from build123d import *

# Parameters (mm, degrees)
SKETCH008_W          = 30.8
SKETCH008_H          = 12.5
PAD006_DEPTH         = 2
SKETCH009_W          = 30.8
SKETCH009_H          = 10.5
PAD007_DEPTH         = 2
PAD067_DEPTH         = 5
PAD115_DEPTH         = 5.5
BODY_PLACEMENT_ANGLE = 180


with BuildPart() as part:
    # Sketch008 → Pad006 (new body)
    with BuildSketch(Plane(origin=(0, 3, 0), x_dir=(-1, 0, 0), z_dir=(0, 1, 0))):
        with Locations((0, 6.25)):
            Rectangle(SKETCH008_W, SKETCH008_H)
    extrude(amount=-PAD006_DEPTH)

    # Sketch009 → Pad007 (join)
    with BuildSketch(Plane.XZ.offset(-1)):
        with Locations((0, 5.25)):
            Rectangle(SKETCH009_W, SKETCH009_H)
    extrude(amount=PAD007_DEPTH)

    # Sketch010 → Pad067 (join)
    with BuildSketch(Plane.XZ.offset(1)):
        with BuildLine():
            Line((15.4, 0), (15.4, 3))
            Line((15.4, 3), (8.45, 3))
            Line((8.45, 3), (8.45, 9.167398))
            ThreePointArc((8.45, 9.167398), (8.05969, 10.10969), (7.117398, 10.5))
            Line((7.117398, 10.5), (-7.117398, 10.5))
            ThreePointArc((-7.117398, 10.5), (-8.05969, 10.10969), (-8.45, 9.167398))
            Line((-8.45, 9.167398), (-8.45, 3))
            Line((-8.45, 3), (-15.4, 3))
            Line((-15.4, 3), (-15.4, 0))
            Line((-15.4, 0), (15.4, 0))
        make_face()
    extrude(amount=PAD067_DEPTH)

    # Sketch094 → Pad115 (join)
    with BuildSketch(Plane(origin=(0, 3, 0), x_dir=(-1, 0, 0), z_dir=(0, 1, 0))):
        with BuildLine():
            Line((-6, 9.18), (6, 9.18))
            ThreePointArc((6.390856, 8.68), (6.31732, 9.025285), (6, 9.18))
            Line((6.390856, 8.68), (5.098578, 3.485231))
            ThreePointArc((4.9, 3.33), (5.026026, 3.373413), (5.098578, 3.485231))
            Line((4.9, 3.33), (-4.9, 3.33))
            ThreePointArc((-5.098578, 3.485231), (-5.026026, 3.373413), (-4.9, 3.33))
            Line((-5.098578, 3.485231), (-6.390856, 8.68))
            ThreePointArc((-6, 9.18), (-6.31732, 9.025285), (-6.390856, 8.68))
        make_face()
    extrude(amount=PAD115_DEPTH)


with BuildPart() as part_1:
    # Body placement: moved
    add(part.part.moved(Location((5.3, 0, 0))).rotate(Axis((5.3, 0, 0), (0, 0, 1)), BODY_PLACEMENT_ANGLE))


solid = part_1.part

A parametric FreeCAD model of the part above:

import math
import FreeCAD as App
import Part
import Sketcher
from FreeCAD import Vector
Q = App.Units.Quantity


def add_polygon(sketch, points):
    """Adds a closed chain of lines whose ends are joined by coincident constraints."""
    first, n = sketch.GeometryCount, len(points)
    for a, b in zip(points, points[1:] + points[:1]):
        sketch.addGeometry(Part.LineSegment(App.Vector(*a, 0), App.Vector(*b, 0)), False)
    for i in range(n):
        sketch.addConstraint(Sketcher.Constraint("Coincident", first + i, 2, first + (i + 1) % n, 1))

doc = App.newDocument("Part")
body = doc.addObject("PartDesign::Body", "Body")

# Sketch on XZ plane
sketch1 = body.newObject("Sketcher::SketchObject", "Sketch")
sketch1.AttachmentSupport = (doc.getObject("XZ_Plane"), [""])
sketch1.MapMode = "FlatFace"
sketch1.AttachmentOffset = App.Placement(Vector(0, 0, -3), App.Rotation())
add_polygon(sketch1, [(15, 12), (15, 0), (-15, 0), (-15, 12)])  # lines 0-3
sketch1.addConstraint(Sketcher.Constraint("Vertical", 0))
sketch1.addConstraint(Sketcher.Constraint("Horizontal", 1))
sketch1.addConstraint(Sketcher.Constraint("Vertical", 2))
sketch1.addConstraint(Sketcher.Constraint("Horizontal", 3))
sketch1.addConstraint(Sketcher.Constraint("Symmetric", 0, 2, 1, 2, -1, 1))
sketch1.addConstraint(Sketcher.Constraint("DistanceX", 1, 2, 1, 1, Q("30.8 mm")))
sketch1.addConstraint(Sketcher.Constraint("DistanceY", 0, 2, 0, 1, Q("12.5 mm")))
pad1 = body.newObject("PartDesign::Pad", "Pad")
pad1.Profile = sketch1
pad1.Length = 2

# Sketch on XZ plane
sketch2 = body.newObject("Sketcher::SketchObject", "Sketch001")
sketch2.AttachmentSupport = (doc.getObject("XZ_Plane"), [""])
sketch2.MapMode = "FlatFace"
sketch2.AttachmentOffset = App.Placement(Vector(0, 0, -1), App.Rotation())
add_polygon(sketch2, [(-15, 10), (-15, 0), (15, 0), (15, 10)])  # lines 0-3
sketch2.addConstraint(Sketcher.Constraint("Vertical", 0))
sketch2.addConstraint(Sketcher.Constraint("Horizontal", 1))
sketch2.addConstraint(Sketcher.Constraint("Vertical", 2))
sketch2.addConstraint(Sketcher.Constraint("Horizontal", 3))
sketch2.addConstraint(Sketcher.Constraint("Symmetric", 0, 2, 1, 2, -1, 1))
sketch2.addConstraint(Sketcher.Constraint("DistanceX", 1, 1, 1, 2, Q("30.8 mm")))
sketch2.addConstraint(Sketcher.Constraint("DistanceY", 0, 2, 0, 1, Q("10.5 mm")))
pad2 = body.newObject("PartDesign::Pad", "Pad001")
pad2.Profile = sketch2
pad2.Length = 2

# Sketch on XZ plane
sketch3 = body.newObject("Sketcher::SketchObject", "Sketch002")
sketch3.AttachmentSupport = (doc.getObject("XZ_Plane"), [""])
sketch3.MapMode = "FlatFace"
sketch3.AttachmentOffset = App.Placement(Vector(0, 0, 1), App.Rotation())
sketch3.addGeometry(Part.LineSegment(Vector(15.4, 0, 0), Vector(15.4, 3, 0)), False)
sketch3.addGeometry(Part.LineSegment(Vector(15.4, 3, 0), Vector(8.4, 3, 0)), False)
sketch3.addGeometry(Part.LineSegment(Vector(8.4, 3, 0), Vector(8.4, 9.2, 0)), False)
sketch3.addGeometry(Part.ArcOfCircle(Part.Circle(Vector(7.1, 9.2, 0), Vector(0, 0, 1), 1.3), math.radians(0), math.radians(90)), False)
sketch3.addGeometry(Part.LineSegment(Vector(7.1, 10.5, 0), Vector(-7.1, 10.5, 0)), False)
sketch3.addGeometry(Part.ArcOfCircle(Part.Circle(Vector(-7.1, 9.2, 0), Vector(0, 0, 1), 1.3), math.radians(90), math.radians(180)), False)
sketch3.addGeometry(Part.LineSegment(Vector(-8.4, 9.2, 0), Vector(-8.4, 3, 0)), False)
sketch3.addGeometry(Part.LineSegment(Vector(-8.4, 3, 0), Vector(-15.4, 3, 0)), False)
sketch3.addGeometry(Part.LineSegment(Vector(-15.4, 3, 0), Vector(-15.4, 0, 0)), False)
sketch3.addGeometry(Part.LineSegment(Vector(-15.4, 0, 0), Vector(15.4, 0, 0)), False)
sketch3.addConstraint(Sketcher.Constraint("Coincident", 0, 2, 1, 1))
sketch3.addConstraint(Sketcher.Constraint("Coincident", 1, 2, 2, 1))
sketch3.addConstraint(Sketcher.Constraint("Tangent", 2, 2, 3, 1))
sketch3.addConstraint(Sketcher.Constraint("Tangent", 3, 2, 4, 1))
sketch3.addConstraint(Sketcher.Constraint("Tangent", 4, 2, 5, 1))
sketch3.addConstraint(Sketcher.Constraint("Tangent", 5, 2, 6, 1))
sketch3.addConstraint(Sketcher.Constraint("Coincident", 6, 2, 7, 1))
sketch3.addConstraint(Sketcher.Constraint("Coincident", 7, 2, 8, 1))
sketch3.addConstraint(Sketcher.Constraint("Coincident", 8, 2, 9, 1))
sketch3.addConstraint(Sketcher.Constraint("Coincident", 9, 2, 0, 1))
sketch3.addConstraint(Sketcher.Constraint("Vertical", 0))
sketch3.addConstraint(Sketcher.Constraint("Horizontal", 1))
sketch3.addConstraint(Sketcher.Constraint("Vertical", 2))
sketch3.addConstraint(Sketcher.Constraint("Horizontal", 4))
sketch3.addConstraint(Sketcher.Constraint("Vertical", 6))
sketch3.addConstraint(Sketcher.Constraint("Horizontal", 7))
sketch3.addConstraint(Sketcher.Constraint("Vertical", 8))
sketch3.addConstraint(Sketcher.Constraint("Horizontal", 9))
sketch3.addConstraint(Sketcher.Constraint("Equal", 3, 5))
sketch3.addConstraint(Sketcher.Constraint("Symmetric", 8, 2, 9, 2, -1, 1))
sketch3.addConstraint(Sketcher.Constraint("Symmetric", 1, 2, 6, 2, -2))
sketch3.addConstraint(Sketcher.Constraint("DistanceY", 0, 1, 0, 2, Q("3 mm")))
sketch3.addConstraint(Sketcher.Constraint("DistanceX", 9, 1, 9, 2, Q("30.8 mm")))
sketch3.addConstraint(Sketcher.Constraint("DistanceX", 1, 2, 1, 1, Q("6.95 mm")))
sketch3.addConstraint(Sketcher.Constraint("DistanceY", -1, 1, 3, 2, Q("10.5 mm")))
sketch3.addConstraint(Sketcher.Constraint("Radius", 3, Q("1.332602 mm")))
pad3 = body.newObject("PartDesign::Pad", "Pad002")
pad3.Profile = sketch3
pad3.Length = 5

# Sketch on XZ plane
sketch4 = body.newObject("Sketcher::SketchObject", "Sketch003")
sketch4.AttachmentSupport = (doc.getObject("XZ_Plane"), [""])
sketch4.MapMode = "FlatFace"
sketch4.AttachmentOffset = App.Placement(Vector(0, 0, -3), App.Rotation())
sketch4.addGeometry(Part.LineSegment(Vector(-6, 9.18, 0), Vector(6, 9.18, 0)), False)
sketch4.addGeometry(Part.ArcOfCircle(Part.Circle(Vector(6, 8.78, 0), Vector(0, 0, 1), 0.4), math.radians(-14), math.radians(90)), False)
sketch4.addGeometry(Part.LineSegment(Vector(6.39, 8.68, 0), Vector(5.1, 3.49, 0)), False)
sketch4.addGeometry(Part.ArcOfCircle(Part.Circle(Vector(4.9, 3.53, 0), Vector(0, 0, 1), 0.2), math.radians(-90), math.radians(-14)), False)
sketch4.addGeometry(Part.LineSegment(Vector(4.9, 3.33, 0), Vector(-4.9, 3.33, 0)), False)
sketch4.addGeometry(Part.ArcOfCircle(Part.Circle(Vector(-4.9, 3.53, 0), Vector(0, 0, 1), 0.2), math.radians(-166), math.radians(-90)), False)
sketch4.addGeometry(Part.LineSegment(Vector(-5.1, 3.49, 0), Vector(-6.39, 8.68, 0)), False)
sketch4.addGeometry(Part.ArcOfCircle(Part.Circle(Vector(-6, 8.78, 0), Vector(0, 0, 1), 0.4), math.radians(90), math.radians(194)), False)
sketch4.addConstraint(Sketcher.Constraint("Tangent", 0, 2, 1, 2))
sketch4.addConstraint(Sketcher.Constraint("Tangent", 1, 1, 2, 1))
sketch4.addConstraint(Sketcher.Constraint("Tangent", 2, 2, 3, 2))
sketch4.addConstraint(Sketcher.Constraint("Tangent", 3, 1, 4, 1))
sketch4.addConstraint(Sketcher.Constraint("Tangent", 4, 2, 5, 2))
sketch4.addConstraint(Sketcher.Constraint("Tangent", 5, 1, 6, 1))
sketch4.addConstraint(Sketcher.Constraint("Tangent", 6, 2, 7, 2))
sketch4.addConstraint(Sketcher.Constraint("Tangent", 7, 1, 0, 1))
sketch4.addConstraint(Sketcher.Constraint("Horizontal", 0))
sketch4.addConstraint(Sketcher.Constraint("Horizontal", 4))
sketch4.addConstraint(Sketcher.Constraint("Equal", 3, 5))
sketch4.addConstraint(Sketcher.Constraint("Equal", 1, 7))
sketch4.addConstraint(Sketcher.Constraint("Symmetric", 2, 2, 5, 1, -2))
sketch4.addConstraint(Sketcher.Constraint("DistanceX", 0, 1, 0, 2, Q("12 mm")))
sketch4.addConstraint(Sketcher.Constraint("DistanceX", 4, 2, 4, 1, Q("9.8 mm")))
sketch4.addConstraint(Sketcher.Constraint("DistanceY", 1, 1, 0, 2, Q("0.5 mm")))
sketch4.addConstraint(Sketcher.Constraint("DistanceY", -1, 1, 0, 2, Q("9.18 mm")))
sketch4.addConstraint(Sketcher.Constraint("DistanceY", -1, 1, 3, 1, Q("3.33 mm")))
sketch4.addConstraint(Sketcher.Constraint("Radius", 1, Q("0.402768 mm")))
pad4 = body.newObject("PartDesign::Pad", "Pad003")
pad4.Profile = sketch4
pad4.Length = 5.5
pad4.Reversed = True
body2 = doc.addObject("PartDesign::Body", "Body001")
doc.recompute()

body.Placement = App.Placement(Vector(5.3, 0, 0), App.Rotation(Vector(0, 0, 1), 180))
boolean = body2.newObject("PartDesign::Boolean", "Boolean")
boolean.Type = "Fuse"
boolean.addObjects([body])

doc.recompute()
